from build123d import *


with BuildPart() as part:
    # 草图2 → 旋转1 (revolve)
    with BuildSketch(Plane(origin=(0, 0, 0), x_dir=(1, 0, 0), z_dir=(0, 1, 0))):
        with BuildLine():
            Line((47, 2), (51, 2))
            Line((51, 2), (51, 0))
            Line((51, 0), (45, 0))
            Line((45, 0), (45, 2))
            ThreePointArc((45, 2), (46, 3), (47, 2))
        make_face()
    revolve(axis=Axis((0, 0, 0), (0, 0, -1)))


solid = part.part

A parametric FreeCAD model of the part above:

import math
import FreeCAD as App
import Part
import Sketcher
from FreeCAD import Vector

doc = App.newDocument("Part")
body = doc.addObject("PartDesign::Body", "Body")

# Sketch on XZ plane
sketch1 = body.newObject("Sketcher::SketchObject", "Sketch")
sketch1.AttachmentSupport = (doc.getObject("XZ_Plane"), [""])
sketch1.MapMode = "FlatFace"
sketch1.addGeometry(Part.LineSegment(Vector(51, -2, 0), Vector(47, -2, 0)), False)
sketch1.addGeometry(Part.ArcOfCircle(Part.Circle(Vector(46, -2, 0), Vector(0, 0, 1), 1), math.radians(180), math.radians(360)), False)
sketch1.addGeometry(Part.LineSegment(Vector(45, -2, 0), Vector(45, 0, 0)), False)
sketch1.addGeometry(Part.LineSegment(Vector(45, 0, 0), Vector(51, 0, 0)), False)
sketch1.addGeometry(Part.LineSegment(Vector(51, 0, 0), Vector(51, -2, 0)), False)
sketch1.addConstraint(Sketcher.Constraint("Coincident", 0, 2, 1, 2))
sketch1.addConstraint(Sketcher.Constraint("Tangent", 1, 1, 2, 1))
sketch1.addConstraint(Sketcher.Constraint("Coincident", 2, 2, 3, 1))
sketch1.addConstraint(Sketcher.Constraint("Coincident", 3, 2, 4, 1))
sketch1.addConstraint(Sketcher.Constraint("Coincident", 4, 2, 0, 1))
sketch1.addConstraint(Sketcher.Constraint("Horizontal", 0))
sketch1.addConstraint(Sketcher.Constraint("Vertical", 2))
sketch1.addConstraint(Sketcher.Constraint("Horizontal", 3))
sketch1.addConstraint(Sketcher.Constraint("Vertical", 4))
sketch1.addConstraint(Sketcher.Constraint("PointOnObject", 2, 2, -1))
sketch1.addConstraint(Sketcher.Constraint("Horizontal", 1, 3, 0, 2))
sketch1.addConstraint(Sketcher.Constraint("Radius", 1, 1.0))
sketch1.addConstraint(Sketcher.Constraint("DistanceX", 0, 2, 0, 1, 4.0))
sketch1.addConstraint(Sketcher.Constraint("DistanceY", 2, 1, 2, 2, 2.0))
sketch1.addConstraint(Sketcher.Constraint("DistanceX", -1, 1, 1, 3, 46.0))
revolution = body.newObject("PartDesign::Revolution", "Revolution")
revolution.Profile = sketch1
revolution.ReferenceAxis = (sketch1, ["V_Axis"])
revolution.Angle = 360

doc.recompute()
